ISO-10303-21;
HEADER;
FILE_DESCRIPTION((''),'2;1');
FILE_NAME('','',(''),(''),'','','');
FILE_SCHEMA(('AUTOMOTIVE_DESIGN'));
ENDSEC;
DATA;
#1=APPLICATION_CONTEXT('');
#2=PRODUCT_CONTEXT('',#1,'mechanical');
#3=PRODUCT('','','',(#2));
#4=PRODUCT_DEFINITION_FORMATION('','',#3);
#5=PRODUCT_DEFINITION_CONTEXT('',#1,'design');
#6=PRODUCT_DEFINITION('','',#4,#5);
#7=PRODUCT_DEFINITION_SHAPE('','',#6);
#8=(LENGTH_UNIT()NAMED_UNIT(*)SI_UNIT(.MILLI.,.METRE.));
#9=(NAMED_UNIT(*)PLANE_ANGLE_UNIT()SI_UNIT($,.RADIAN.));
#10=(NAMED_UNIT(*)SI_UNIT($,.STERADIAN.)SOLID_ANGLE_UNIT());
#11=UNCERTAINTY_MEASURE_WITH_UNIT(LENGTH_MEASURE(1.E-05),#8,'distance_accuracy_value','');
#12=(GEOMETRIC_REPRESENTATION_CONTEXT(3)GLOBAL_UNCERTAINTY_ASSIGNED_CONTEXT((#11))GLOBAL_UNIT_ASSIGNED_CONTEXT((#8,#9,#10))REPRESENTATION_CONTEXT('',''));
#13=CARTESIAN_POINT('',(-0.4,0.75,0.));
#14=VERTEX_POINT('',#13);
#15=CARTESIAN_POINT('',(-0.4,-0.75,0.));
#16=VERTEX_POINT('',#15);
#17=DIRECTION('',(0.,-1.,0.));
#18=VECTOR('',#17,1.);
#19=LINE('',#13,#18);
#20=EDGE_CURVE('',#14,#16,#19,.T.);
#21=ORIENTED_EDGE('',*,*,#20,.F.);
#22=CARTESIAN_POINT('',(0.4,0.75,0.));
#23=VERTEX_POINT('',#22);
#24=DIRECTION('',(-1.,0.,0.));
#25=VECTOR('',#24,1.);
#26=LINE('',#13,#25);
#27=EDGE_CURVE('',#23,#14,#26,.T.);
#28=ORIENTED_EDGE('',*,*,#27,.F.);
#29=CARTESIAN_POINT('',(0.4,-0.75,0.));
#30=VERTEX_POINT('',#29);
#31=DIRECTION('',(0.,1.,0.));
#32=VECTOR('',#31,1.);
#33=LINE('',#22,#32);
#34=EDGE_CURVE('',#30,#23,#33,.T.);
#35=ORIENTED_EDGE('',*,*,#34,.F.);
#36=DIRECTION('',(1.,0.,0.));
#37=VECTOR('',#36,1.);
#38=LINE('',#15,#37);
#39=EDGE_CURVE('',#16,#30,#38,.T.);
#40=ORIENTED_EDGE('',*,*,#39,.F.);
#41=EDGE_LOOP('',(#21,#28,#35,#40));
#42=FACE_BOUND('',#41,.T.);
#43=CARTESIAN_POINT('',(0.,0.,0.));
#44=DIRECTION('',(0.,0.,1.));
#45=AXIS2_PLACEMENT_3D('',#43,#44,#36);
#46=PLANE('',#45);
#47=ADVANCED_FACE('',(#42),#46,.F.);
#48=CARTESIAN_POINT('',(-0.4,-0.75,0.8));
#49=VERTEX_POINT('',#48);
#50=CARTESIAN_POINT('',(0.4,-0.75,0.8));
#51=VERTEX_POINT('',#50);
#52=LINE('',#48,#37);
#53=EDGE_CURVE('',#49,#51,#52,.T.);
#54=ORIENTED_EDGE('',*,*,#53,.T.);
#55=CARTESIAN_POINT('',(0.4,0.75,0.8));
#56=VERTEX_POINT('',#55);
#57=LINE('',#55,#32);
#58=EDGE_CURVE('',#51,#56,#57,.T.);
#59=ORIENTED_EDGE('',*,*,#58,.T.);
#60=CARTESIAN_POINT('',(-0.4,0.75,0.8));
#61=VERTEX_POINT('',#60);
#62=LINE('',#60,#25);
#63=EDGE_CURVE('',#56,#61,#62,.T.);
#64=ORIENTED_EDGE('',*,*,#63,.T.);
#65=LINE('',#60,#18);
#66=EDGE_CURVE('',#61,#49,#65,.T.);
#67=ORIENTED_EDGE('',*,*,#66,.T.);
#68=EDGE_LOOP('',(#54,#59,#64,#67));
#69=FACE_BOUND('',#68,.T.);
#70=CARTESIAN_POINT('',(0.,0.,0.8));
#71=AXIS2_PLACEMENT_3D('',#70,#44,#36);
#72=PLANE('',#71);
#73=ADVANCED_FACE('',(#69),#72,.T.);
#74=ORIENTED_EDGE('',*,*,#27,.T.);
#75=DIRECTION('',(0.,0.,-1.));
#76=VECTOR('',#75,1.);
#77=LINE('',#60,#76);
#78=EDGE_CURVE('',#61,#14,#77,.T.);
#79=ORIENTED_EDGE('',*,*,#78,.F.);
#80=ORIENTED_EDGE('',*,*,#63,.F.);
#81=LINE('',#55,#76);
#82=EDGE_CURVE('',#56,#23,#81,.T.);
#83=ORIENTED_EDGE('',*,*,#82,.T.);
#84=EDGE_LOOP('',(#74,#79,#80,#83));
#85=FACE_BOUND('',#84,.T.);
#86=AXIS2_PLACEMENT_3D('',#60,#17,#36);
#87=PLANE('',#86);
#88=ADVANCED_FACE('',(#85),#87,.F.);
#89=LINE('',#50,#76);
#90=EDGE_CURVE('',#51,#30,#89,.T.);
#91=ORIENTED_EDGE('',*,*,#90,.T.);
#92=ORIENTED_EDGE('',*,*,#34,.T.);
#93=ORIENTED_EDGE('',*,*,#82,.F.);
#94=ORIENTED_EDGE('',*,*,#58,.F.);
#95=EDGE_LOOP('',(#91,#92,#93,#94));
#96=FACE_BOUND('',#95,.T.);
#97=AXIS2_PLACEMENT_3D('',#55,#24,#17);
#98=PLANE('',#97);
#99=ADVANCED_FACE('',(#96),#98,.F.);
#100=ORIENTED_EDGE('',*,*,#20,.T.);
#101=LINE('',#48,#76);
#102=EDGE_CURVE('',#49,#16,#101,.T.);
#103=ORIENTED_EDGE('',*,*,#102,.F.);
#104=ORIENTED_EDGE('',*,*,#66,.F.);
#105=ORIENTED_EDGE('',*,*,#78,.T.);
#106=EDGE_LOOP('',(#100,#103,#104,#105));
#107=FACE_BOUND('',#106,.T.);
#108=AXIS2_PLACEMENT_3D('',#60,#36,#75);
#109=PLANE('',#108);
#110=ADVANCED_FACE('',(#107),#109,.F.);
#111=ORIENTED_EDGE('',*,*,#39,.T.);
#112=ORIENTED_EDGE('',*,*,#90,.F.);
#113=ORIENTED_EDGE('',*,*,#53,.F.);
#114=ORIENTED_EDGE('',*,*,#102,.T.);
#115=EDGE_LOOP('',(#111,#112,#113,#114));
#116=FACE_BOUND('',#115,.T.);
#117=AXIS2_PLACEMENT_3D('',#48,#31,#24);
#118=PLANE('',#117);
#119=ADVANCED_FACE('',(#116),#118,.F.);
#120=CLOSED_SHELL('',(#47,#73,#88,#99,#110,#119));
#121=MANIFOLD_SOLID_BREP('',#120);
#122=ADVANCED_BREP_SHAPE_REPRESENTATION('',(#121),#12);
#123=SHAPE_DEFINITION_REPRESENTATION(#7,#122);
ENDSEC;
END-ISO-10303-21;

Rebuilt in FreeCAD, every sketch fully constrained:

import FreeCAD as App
import Part
import Sketcher


def add_polygon(sketch, points):
    """Adds a closed chain of lines whose ends are joined by coincident constraints."""
    first, n = sketch.GeometryCount, len(points)
    for a, b in zip(points, points[1:] + points[:1]):
        sketch.addGeometry(Part.LineSegment(App.Vector(*a, 0), App.Vector(*b, 0)), False)
    for i in range(n):
        sketch.addConstraint(Sketcher.Constraint("Coincident", first + i, 2, first + (i + 1) % n, 1))

doc = App.newDocument("Part")
body = doc.addObject("PartDesign::Body", "Body")

# Sketch on XY plane
sketch1 = body.newObject("Sketcher::SketchObject", "Sketch")
sketch1.AttachmentSupport = (doc.getObject("XY_Plane"), [""])
sketch1.MapMode = "FlatFace"
add_polygon(sketch1, [(-0.4, 0.8), (-0.4, -0.8), (0.4, -0.8), (0.4, 0.8)])  # lines 0-3
sketch1.addConstraint(Sketcher.Constraint("Vertical", 0))
sketch1.addConstraint(Sketcher.Constraint("Horizontal", 1))
sketch1.addConstraint(Sketcher.Constraint("Vertical", 2))
sketch1.addConstraint(Sketcher.Constraint("Horizontal", 3))
sketch1.addConstraint(Sketcher.Constraint("Symmetric", 0, 2, 2, 2, -1, 1))
sketch1.addConstraint(Sketcher.Constraint("DistanceX", 1, 1, 1, 2, 0.8))
sketch1.addConstraint(Sketcher.Constraint("DistanceY", 0, 2, 0, 1, 1.5))
pad1 = body.newObject("PartDesign::Pad", "Pad")
pad1.Profile = sketch1
pad1.Length = 0.8

doc.recompute()
